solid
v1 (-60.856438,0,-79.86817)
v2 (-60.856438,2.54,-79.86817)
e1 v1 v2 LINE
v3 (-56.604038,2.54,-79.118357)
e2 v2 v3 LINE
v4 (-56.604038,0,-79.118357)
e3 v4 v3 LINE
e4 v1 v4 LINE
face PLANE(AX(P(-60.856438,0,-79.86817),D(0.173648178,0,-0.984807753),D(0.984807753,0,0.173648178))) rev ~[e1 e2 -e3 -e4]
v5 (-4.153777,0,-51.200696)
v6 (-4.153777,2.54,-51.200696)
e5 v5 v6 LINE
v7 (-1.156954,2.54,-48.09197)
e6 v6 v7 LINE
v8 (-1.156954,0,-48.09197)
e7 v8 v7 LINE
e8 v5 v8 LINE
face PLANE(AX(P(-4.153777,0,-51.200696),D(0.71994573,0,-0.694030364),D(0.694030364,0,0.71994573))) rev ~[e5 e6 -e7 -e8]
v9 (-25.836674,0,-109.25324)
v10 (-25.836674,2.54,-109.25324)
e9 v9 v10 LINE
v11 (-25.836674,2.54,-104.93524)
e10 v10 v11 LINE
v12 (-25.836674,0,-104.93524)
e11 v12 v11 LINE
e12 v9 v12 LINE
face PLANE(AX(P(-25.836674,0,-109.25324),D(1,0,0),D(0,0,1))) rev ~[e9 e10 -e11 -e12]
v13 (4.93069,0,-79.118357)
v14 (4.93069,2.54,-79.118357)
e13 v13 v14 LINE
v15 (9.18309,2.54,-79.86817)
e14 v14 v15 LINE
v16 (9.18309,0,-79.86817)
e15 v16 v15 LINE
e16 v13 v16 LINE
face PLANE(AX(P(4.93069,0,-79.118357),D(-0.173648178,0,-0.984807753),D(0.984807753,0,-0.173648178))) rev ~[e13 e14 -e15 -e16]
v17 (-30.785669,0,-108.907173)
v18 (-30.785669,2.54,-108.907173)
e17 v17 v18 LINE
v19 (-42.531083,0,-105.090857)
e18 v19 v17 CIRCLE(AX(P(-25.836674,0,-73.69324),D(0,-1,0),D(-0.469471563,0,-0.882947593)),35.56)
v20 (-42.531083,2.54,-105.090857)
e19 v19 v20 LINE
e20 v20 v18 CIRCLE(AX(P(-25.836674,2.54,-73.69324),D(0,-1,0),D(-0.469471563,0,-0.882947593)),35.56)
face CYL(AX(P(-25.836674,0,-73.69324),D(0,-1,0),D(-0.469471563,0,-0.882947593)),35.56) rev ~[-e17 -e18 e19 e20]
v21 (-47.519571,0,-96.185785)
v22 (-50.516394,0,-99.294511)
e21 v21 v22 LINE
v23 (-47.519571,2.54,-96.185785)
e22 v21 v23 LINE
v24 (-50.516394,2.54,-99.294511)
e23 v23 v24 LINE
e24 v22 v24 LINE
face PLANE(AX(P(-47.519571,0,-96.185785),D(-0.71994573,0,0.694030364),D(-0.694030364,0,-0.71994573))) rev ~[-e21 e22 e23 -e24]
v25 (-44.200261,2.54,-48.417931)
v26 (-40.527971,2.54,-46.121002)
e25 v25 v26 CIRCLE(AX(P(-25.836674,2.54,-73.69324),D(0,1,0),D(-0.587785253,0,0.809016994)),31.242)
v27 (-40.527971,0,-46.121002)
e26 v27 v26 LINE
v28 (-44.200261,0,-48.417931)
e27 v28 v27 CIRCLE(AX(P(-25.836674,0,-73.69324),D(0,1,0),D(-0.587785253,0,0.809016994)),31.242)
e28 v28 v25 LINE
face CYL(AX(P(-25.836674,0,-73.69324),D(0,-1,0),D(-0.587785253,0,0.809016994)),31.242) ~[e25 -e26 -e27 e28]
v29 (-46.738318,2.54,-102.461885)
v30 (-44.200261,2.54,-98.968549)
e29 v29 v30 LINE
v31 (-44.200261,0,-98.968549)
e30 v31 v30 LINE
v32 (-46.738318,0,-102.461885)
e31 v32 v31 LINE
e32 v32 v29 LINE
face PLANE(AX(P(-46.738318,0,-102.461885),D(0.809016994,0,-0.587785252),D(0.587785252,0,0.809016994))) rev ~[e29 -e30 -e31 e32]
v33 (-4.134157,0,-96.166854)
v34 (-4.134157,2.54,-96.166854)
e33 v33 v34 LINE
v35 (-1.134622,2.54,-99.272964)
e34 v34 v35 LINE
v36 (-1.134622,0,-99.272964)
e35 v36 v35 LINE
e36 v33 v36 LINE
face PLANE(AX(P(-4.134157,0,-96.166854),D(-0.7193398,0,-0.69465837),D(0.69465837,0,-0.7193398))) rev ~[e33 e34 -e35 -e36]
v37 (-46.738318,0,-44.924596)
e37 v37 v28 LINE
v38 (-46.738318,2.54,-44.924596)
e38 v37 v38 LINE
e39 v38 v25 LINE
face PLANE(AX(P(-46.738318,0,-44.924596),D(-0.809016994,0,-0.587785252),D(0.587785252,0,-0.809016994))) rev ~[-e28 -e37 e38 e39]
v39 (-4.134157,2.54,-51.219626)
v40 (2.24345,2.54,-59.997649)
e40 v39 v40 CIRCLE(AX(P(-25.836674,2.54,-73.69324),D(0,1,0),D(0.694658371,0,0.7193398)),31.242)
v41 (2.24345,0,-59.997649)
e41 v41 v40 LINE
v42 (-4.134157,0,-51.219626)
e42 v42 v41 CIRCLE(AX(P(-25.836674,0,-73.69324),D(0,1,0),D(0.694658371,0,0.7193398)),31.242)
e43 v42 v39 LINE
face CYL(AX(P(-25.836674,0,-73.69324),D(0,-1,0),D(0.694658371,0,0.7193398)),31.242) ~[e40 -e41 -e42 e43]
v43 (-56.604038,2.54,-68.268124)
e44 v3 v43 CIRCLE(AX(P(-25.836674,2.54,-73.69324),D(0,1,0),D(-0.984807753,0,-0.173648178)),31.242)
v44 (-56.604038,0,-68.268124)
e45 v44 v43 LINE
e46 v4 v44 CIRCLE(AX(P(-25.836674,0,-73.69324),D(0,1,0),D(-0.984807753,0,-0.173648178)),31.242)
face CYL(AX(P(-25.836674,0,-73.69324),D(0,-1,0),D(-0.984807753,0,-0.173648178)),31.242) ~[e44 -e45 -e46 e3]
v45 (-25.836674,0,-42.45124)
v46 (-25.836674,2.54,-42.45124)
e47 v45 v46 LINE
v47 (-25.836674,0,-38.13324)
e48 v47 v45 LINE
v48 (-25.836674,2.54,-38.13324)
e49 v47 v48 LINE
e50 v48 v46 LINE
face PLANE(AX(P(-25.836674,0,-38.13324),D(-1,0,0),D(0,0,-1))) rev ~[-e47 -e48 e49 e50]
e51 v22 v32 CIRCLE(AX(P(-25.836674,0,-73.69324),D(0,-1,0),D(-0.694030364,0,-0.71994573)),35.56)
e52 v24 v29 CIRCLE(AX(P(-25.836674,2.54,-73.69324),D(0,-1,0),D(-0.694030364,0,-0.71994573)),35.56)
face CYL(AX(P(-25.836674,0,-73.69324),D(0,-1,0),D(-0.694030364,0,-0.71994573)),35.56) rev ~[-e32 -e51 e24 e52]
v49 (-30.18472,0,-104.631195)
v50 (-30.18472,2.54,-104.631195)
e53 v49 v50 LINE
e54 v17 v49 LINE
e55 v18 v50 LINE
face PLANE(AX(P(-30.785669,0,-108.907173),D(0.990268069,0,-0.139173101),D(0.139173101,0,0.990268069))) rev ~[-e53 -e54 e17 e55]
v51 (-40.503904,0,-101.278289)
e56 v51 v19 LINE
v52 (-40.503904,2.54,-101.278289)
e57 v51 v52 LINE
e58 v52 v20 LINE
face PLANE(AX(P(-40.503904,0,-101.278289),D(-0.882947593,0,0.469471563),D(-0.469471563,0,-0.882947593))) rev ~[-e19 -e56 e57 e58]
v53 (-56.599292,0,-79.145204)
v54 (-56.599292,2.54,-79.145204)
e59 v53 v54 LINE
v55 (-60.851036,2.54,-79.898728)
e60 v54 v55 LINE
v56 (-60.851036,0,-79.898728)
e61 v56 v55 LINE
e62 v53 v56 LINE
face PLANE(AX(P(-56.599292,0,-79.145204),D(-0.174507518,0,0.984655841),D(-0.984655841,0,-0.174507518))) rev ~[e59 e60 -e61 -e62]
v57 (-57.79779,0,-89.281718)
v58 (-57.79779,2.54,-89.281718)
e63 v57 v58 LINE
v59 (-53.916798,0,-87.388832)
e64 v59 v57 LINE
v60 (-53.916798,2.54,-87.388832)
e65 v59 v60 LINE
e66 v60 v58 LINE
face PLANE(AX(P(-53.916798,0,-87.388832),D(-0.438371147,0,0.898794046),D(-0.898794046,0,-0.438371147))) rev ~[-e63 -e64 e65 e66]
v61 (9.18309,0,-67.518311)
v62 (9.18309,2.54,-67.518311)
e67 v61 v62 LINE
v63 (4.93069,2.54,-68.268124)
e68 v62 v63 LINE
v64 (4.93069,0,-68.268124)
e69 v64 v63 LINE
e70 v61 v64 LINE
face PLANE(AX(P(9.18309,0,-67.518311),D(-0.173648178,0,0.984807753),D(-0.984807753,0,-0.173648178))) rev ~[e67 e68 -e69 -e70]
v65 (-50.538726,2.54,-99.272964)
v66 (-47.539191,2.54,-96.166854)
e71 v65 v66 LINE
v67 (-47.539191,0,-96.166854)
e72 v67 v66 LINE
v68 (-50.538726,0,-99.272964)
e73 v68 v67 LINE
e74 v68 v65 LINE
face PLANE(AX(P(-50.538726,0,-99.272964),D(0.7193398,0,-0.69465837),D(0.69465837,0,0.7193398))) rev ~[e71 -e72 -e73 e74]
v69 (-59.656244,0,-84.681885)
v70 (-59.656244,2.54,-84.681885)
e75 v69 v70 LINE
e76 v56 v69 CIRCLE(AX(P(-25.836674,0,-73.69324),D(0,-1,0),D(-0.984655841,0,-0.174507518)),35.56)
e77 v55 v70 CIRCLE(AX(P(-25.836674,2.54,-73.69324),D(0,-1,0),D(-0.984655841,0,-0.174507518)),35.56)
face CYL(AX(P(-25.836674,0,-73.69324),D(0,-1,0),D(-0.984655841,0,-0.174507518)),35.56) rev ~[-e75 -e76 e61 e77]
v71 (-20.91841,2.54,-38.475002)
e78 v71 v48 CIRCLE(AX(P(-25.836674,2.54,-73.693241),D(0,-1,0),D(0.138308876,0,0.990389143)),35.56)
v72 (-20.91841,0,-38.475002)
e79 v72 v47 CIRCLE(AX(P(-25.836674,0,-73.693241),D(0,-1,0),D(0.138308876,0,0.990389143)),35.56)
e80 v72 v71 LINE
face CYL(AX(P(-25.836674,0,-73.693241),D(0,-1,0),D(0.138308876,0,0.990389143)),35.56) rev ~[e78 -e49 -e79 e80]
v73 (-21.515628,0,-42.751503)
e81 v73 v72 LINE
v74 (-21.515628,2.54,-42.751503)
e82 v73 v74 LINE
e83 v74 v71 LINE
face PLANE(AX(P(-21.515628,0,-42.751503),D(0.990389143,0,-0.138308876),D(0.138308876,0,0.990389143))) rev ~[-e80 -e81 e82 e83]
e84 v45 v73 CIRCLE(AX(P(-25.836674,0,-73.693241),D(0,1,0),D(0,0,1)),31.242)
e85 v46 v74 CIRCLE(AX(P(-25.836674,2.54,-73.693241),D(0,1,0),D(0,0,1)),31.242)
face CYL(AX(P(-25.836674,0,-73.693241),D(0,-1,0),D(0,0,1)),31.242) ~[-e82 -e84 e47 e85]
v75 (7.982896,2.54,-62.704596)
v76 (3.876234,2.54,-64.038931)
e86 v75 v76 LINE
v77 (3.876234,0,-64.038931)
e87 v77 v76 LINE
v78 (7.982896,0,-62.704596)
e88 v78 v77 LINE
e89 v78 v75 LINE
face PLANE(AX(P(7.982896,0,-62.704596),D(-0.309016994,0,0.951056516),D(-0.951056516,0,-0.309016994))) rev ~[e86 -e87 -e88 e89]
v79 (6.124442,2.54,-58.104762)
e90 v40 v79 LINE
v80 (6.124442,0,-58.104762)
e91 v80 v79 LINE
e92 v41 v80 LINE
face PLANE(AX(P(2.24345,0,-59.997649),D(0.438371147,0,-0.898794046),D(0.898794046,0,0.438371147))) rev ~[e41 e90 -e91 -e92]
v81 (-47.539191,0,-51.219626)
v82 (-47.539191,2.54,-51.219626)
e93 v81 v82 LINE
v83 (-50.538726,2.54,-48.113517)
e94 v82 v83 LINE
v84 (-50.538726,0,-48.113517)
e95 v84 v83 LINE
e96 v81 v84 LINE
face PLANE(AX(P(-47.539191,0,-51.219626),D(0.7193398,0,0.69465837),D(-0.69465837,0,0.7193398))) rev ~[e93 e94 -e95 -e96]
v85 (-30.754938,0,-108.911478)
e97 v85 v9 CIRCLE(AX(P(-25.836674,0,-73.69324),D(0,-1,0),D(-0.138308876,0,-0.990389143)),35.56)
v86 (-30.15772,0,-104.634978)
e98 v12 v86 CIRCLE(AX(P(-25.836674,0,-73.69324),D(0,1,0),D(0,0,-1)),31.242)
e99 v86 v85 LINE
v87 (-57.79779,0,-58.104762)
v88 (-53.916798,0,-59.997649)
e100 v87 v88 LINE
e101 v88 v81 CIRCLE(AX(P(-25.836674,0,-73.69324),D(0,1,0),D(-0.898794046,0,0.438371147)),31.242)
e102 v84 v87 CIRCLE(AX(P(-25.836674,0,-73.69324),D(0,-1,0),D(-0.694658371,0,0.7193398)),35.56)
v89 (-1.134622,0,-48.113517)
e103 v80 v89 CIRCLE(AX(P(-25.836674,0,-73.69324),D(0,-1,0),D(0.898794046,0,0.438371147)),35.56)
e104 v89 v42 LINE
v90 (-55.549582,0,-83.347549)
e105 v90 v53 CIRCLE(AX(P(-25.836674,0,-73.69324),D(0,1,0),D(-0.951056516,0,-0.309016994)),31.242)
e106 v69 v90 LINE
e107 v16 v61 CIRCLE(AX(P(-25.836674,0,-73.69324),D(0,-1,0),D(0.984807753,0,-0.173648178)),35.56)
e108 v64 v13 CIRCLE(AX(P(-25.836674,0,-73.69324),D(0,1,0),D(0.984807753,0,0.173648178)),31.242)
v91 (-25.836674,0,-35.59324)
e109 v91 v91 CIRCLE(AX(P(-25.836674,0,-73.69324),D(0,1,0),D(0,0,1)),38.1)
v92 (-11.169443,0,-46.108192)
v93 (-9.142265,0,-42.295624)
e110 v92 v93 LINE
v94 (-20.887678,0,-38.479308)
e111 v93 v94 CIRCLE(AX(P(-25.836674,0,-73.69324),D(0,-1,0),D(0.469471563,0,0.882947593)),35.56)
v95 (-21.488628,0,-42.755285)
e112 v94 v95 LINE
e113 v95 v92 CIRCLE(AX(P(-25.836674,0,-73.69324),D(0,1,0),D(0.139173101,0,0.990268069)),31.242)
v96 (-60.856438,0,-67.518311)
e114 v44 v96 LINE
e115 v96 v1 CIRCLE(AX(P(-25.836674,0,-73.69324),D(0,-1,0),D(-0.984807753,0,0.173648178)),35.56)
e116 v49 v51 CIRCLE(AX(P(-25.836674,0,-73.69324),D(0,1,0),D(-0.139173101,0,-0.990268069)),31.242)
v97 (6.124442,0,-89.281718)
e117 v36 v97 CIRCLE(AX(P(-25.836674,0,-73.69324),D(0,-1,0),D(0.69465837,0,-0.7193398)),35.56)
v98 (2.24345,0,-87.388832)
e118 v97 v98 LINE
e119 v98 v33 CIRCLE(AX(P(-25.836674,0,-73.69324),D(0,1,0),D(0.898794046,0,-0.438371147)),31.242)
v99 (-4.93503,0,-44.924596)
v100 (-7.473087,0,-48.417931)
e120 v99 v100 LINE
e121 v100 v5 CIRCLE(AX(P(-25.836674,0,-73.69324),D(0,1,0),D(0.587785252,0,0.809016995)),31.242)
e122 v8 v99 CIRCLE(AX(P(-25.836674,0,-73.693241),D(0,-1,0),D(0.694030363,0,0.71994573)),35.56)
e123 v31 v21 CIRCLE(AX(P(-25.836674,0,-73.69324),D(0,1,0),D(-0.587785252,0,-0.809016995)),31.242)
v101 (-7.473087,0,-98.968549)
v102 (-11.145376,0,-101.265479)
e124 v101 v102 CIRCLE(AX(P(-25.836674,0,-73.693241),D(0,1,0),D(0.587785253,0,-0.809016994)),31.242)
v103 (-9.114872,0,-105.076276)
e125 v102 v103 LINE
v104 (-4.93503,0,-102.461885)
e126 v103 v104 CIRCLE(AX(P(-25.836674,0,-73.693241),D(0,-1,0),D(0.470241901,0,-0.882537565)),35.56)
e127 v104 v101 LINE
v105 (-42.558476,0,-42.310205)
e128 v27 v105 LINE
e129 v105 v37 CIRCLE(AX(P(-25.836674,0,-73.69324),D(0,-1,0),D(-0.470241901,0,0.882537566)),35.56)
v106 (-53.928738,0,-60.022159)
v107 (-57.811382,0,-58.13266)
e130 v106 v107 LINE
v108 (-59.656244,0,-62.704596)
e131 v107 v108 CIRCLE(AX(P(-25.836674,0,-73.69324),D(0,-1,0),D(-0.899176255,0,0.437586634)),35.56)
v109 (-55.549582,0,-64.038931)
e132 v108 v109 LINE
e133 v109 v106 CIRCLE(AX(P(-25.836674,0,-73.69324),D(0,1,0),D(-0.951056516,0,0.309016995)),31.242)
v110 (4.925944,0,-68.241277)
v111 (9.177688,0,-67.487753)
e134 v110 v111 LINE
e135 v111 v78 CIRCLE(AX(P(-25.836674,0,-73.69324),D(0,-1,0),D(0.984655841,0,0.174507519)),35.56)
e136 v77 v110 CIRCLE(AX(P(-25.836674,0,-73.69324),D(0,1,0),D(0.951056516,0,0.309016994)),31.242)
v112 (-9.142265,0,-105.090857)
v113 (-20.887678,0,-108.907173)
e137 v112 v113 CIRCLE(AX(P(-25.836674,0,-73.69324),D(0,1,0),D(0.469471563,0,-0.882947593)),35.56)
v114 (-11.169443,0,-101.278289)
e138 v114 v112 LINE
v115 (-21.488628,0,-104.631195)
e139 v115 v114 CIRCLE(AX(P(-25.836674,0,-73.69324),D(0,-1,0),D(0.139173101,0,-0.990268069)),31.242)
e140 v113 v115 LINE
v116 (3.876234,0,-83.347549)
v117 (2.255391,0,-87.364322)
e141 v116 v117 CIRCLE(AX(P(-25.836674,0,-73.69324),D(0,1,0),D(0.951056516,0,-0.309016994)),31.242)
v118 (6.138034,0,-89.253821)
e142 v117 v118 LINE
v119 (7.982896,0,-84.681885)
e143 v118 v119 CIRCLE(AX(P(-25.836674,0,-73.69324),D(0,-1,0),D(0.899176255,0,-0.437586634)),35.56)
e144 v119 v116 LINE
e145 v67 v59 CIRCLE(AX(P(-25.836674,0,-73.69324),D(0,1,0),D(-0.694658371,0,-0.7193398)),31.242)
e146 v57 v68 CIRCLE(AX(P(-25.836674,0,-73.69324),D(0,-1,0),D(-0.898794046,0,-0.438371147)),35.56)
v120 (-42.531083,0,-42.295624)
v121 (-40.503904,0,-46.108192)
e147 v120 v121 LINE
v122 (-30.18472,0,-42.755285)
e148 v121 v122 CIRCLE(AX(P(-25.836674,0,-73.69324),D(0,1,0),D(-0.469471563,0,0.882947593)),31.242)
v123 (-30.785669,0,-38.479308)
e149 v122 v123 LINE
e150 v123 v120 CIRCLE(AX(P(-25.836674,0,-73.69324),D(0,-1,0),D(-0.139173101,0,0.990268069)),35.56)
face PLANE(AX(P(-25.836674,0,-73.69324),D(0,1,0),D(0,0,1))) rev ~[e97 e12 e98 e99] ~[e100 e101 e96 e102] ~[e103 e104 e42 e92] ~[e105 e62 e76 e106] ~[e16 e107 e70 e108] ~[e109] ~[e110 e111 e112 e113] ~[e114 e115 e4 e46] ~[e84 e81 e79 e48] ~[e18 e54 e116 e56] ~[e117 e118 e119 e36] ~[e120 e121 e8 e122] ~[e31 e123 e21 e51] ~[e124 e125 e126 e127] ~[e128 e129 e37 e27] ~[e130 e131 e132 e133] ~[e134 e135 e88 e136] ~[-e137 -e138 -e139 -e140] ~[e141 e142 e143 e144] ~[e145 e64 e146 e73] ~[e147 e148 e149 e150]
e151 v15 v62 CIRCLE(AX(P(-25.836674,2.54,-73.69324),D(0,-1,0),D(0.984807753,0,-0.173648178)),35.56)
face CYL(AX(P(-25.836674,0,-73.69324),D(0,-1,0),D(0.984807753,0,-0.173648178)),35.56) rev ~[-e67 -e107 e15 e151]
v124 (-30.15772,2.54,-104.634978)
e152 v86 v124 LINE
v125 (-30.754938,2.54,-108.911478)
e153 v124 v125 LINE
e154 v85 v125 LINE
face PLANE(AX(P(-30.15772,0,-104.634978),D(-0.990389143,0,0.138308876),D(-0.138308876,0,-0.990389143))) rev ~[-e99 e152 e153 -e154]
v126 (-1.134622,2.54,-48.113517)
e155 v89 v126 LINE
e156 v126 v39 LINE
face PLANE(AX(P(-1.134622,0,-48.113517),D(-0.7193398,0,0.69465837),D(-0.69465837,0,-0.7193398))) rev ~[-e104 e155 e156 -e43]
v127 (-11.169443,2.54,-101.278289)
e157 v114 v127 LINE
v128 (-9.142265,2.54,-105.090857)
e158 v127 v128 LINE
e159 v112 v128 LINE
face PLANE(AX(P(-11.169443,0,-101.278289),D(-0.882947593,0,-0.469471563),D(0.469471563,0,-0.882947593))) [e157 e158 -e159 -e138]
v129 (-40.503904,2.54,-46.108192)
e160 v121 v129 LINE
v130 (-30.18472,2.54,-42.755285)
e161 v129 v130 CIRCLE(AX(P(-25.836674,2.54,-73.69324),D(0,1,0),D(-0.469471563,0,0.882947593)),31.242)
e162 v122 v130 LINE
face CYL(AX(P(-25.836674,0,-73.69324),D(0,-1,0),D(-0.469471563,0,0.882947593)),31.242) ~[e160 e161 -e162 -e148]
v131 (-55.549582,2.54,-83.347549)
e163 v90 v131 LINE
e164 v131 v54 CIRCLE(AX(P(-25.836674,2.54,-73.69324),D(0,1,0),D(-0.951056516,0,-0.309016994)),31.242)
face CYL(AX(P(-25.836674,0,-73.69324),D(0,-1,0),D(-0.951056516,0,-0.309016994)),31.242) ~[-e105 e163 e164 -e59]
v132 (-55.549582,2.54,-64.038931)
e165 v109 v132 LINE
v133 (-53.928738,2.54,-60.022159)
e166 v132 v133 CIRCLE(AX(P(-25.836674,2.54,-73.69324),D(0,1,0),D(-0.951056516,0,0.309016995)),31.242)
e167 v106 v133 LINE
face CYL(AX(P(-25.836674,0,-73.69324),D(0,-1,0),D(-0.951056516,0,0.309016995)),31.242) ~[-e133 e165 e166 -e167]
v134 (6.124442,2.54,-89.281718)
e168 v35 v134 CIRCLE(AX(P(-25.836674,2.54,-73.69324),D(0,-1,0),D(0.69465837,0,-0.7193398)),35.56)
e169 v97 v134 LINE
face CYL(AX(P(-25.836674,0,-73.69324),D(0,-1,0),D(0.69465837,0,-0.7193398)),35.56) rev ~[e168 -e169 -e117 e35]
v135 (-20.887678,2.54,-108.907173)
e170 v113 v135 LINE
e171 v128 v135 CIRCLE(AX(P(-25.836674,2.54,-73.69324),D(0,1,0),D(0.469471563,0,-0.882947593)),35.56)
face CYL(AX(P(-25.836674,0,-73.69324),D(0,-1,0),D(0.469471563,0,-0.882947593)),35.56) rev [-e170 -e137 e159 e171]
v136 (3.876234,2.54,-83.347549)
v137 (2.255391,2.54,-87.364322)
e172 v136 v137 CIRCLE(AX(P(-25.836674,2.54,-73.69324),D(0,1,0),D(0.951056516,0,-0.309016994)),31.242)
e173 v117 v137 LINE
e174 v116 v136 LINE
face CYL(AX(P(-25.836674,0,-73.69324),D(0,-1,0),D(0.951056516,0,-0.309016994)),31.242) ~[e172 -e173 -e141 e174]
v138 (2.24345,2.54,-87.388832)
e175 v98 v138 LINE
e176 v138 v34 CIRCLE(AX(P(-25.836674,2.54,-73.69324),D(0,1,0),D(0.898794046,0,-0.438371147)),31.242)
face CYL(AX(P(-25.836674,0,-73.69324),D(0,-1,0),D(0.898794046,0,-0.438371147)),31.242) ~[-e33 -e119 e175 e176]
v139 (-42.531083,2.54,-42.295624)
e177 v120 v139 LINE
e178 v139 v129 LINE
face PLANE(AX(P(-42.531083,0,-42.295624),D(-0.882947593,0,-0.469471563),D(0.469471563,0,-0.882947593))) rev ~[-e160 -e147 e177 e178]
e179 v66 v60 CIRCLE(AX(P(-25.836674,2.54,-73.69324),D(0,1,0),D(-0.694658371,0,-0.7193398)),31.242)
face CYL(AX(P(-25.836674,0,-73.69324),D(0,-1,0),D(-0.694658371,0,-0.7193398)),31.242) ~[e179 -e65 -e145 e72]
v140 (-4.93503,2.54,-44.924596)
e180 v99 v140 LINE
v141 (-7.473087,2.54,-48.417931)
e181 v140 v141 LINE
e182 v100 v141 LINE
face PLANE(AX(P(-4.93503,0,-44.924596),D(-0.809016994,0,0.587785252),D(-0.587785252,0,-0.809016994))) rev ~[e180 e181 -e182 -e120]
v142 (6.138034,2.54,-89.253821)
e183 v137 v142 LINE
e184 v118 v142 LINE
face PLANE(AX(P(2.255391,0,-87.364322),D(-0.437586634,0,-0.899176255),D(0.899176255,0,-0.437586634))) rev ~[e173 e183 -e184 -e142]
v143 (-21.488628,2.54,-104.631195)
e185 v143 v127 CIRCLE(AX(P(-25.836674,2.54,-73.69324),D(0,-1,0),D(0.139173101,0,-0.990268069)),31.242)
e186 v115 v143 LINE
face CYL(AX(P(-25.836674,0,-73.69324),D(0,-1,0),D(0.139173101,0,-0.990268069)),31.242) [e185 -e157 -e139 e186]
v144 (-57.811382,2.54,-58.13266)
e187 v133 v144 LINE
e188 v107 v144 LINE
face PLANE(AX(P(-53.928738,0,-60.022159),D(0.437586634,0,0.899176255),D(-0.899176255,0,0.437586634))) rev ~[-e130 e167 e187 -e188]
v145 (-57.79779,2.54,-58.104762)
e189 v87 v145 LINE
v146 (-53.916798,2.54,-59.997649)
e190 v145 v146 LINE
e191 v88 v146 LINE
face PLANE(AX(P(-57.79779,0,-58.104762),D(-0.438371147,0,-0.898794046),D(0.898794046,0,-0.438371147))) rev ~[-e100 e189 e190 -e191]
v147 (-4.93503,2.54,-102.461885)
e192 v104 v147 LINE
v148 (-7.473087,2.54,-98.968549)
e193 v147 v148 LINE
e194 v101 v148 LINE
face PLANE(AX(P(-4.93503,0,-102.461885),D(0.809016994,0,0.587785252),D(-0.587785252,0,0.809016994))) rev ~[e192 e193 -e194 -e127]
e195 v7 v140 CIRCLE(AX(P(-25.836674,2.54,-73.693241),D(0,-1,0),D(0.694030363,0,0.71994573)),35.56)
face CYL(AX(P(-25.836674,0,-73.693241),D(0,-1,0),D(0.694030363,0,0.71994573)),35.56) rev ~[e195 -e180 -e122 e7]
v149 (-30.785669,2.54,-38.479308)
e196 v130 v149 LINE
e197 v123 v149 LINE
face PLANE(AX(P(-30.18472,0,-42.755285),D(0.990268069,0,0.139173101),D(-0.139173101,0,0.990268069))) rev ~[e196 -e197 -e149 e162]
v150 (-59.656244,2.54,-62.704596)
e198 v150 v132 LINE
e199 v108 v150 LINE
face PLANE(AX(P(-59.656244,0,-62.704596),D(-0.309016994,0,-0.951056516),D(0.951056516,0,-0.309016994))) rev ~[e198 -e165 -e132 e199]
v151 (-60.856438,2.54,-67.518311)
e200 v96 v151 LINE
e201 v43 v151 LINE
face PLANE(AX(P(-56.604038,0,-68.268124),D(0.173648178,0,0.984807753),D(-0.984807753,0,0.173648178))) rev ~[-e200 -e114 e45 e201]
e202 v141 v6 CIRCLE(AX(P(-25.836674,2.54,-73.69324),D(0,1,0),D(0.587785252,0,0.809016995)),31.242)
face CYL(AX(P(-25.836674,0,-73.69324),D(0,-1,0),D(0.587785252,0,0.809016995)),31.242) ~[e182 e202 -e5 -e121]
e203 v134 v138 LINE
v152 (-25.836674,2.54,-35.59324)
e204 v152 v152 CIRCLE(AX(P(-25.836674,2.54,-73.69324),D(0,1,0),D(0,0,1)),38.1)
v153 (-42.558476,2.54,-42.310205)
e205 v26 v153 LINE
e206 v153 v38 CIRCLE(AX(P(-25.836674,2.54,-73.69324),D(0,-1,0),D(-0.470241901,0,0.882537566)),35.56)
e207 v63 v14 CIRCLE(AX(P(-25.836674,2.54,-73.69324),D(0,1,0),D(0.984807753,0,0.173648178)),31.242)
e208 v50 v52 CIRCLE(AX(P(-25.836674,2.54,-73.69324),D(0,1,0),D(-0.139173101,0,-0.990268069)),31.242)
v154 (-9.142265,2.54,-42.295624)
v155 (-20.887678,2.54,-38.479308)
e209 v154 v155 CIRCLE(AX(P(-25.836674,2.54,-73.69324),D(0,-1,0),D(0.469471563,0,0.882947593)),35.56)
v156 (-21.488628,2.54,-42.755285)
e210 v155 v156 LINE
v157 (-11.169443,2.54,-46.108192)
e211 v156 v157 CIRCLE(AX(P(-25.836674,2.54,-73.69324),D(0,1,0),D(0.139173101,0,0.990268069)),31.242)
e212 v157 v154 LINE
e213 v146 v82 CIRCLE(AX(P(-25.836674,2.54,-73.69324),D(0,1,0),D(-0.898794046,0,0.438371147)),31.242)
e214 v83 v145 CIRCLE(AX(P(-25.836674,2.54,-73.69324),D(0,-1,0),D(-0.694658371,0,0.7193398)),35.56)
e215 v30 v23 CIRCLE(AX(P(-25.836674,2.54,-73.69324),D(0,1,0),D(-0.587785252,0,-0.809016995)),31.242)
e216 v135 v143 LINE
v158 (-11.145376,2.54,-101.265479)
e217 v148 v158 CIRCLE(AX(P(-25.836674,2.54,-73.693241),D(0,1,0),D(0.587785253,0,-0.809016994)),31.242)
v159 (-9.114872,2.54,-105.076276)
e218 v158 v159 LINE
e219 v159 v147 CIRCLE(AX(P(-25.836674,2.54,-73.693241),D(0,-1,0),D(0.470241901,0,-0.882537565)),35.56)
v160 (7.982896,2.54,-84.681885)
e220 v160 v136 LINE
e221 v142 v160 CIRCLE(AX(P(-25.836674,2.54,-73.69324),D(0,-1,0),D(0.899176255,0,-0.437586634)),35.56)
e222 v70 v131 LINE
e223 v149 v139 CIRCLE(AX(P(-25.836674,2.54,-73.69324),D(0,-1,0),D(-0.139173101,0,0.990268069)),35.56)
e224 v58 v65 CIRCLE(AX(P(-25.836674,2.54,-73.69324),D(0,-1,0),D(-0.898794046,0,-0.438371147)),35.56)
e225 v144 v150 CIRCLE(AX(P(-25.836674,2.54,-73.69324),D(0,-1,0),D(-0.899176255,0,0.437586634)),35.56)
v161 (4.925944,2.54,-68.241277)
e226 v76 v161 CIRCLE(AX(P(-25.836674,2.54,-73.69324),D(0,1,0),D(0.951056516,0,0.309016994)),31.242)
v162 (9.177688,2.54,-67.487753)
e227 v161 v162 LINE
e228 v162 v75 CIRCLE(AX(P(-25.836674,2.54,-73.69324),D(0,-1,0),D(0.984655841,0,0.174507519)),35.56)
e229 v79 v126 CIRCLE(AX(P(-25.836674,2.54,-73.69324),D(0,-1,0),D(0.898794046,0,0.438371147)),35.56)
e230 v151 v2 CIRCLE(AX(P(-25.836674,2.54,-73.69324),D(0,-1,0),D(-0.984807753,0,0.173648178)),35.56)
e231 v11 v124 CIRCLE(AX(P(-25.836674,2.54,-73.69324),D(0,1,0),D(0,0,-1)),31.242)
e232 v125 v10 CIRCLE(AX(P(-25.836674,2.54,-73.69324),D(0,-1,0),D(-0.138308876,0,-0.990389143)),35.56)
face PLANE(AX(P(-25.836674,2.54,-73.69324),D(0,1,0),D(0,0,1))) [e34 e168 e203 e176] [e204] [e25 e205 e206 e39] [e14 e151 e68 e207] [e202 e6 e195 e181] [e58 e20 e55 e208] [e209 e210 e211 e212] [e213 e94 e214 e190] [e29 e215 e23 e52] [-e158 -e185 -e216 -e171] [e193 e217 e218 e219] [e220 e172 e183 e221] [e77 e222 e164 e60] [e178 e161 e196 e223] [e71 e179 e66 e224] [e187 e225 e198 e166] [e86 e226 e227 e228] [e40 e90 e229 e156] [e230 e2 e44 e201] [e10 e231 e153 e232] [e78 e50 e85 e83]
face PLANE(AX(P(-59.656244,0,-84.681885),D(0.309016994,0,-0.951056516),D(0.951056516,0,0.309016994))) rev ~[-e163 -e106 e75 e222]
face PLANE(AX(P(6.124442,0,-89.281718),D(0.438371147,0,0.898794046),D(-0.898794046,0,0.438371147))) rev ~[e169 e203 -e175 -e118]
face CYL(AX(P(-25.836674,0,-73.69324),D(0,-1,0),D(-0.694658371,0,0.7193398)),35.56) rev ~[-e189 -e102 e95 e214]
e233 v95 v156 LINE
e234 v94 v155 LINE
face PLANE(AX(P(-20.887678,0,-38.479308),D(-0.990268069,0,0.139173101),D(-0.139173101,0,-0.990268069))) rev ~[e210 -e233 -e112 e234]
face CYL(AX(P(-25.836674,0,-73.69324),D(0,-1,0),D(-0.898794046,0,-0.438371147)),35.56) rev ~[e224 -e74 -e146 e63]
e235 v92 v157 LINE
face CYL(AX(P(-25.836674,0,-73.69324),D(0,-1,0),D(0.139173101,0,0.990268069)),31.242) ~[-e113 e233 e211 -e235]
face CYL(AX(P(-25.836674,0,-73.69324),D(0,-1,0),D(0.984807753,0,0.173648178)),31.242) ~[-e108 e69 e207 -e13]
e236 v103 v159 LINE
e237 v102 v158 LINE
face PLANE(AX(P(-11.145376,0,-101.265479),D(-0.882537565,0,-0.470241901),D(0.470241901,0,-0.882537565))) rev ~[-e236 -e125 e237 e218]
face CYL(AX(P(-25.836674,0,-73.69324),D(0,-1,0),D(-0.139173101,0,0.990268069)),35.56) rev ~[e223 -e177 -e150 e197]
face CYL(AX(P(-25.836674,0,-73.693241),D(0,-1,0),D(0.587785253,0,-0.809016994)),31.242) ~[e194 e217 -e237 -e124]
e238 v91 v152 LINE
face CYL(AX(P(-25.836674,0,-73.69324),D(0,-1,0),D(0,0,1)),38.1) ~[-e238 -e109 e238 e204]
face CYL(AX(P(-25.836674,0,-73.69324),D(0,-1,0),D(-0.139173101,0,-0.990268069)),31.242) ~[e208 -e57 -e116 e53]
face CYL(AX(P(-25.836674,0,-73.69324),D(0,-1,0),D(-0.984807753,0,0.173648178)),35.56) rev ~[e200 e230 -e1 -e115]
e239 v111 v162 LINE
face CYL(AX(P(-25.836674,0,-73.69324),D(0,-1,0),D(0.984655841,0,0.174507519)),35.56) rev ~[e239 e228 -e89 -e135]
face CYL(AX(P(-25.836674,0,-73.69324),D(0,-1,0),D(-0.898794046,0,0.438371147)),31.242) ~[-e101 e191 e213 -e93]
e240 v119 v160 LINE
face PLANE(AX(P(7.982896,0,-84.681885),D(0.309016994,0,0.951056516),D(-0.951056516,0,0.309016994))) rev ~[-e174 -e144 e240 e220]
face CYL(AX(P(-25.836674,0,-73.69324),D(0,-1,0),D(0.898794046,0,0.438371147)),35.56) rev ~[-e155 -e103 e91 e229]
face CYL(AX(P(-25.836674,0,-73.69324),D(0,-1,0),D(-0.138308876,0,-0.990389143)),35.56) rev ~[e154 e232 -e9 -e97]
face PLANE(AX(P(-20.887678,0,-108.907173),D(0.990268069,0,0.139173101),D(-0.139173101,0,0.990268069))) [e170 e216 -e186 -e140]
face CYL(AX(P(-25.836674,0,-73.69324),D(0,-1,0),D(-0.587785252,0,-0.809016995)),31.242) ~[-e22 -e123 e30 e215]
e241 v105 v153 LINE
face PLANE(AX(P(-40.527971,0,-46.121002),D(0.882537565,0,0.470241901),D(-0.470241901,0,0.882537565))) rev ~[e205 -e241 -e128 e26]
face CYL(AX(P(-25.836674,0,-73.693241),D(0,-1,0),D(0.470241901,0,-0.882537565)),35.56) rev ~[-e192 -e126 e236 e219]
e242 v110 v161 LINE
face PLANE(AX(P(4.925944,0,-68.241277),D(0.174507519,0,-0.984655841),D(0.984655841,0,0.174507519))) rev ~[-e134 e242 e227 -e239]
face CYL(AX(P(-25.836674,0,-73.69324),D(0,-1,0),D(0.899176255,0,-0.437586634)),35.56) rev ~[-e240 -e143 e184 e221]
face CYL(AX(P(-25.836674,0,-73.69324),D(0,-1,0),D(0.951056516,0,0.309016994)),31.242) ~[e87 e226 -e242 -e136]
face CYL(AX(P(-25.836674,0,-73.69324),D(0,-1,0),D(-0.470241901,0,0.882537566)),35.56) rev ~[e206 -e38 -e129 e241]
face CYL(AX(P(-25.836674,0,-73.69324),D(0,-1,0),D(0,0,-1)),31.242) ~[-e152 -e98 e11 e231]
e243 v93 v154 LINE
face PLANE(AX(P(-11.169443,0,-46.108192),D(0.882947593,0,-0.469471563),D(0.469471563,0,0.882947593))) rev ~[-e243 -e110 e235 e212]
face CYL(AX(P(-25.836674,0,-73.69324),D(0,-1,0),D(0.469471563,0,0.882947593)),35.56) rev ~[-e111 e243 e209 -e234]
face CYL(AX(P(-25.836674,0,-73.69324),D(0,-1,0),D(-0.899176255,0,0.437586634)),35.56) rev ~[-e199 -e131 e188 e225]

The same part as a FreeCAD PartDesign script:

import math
import FreeCAD as App
import Part
import Sketcher
Q = App.Units.Quantity

doc = App.newDocument("Part")
body = doc.addObject("PartDesign::Body", "Body")

sketch1 = body.newObject("Sketcher::SketchObject", "Sketch")
sketch1.AttachmentSupport = (doc.getObject("XZ_Plane"), [""])
sketch1.MapMode = "FlatFace"
sketch1.addGeometry([
    Part.Circle(App.Vector(-25.8, -73.7, 0), App.Vector(0, 0, 1), 38.1),
    Part.ArcOfCircle(Part.Circle(App.Vector(-25.8, -73.7, 0), App.Vector(0, 0, 1), 35.6), math.radians(-154), math.radians(-134)),
    Part.LineSegment(App.Vector(-50.5, -99.3, 0), App.Vector(-47.5, -96.2, 0)),
    Part.ArcOfCircle(Part.Circle(App.Vector(-25.8, -73.7, 0), App.Vector(0, 0, 1), 31.2), math.radians(-154), math.radians(-134)),
    Part.LineSegment(App.Vector(-53.9, -87.4, 0), App.Vector(-57.8, -89.3, 0)),
    Part.ArcOfCircle(Part.Circle(App.Vector(-25.8, -73.7, 0), App.Vector(0, 0, 1), 35.6), math.radians(-133.95), math.radians(-126)),
    Part.LineSegment(App.Vector(-46.7, -102.5, 0), App.Vector(-44.2, -99, 0)),
    Part.ArcOfCircle(Part.Circle(App.Vector(-25.8, -73.7, 0), App.Vector(0, 0, 1), 31.2), math.radians(-133.95), math.radians(-126)),
    Part.LineSegment(App.Vector(-47.5, -96.2, 0), App.Vector(-50.5, -99.3, 0)),
    Part.ArcOfCircle(Part.Circle(App.Vector(-25.8, -73.7, 0), App.Vector(0, 0, 1), 35.6), math.radians(-169.95), math.radians(-162)),
    Part.LineSegment(App.Vector(-59.7, -84.7, 0), App.Vector(-55.5, -83.3, 0)),
    Part.ArcOfCircle(Part.Circle(App.Vector(-25.8, -73.7, 0), App.Vector(0, 0, 1), 31.2), math.radians(-169.95), math.radians(-162)),
    Part.LineSegment(App.Vector(-56.6, -79.1, 0), App.Vector(-60.9, -79.9, 0)),
    Part.ArcOfCircle(Part.Circle(App.Vector(-25.8, -73.7, 0), App.Vector(0, 0, 1), 35.6), math.radians(170), math.radians(190)),
    Part.LineSegment(App.Vector(-60.9, -79.9, 0), App.Vector(-56.6, -79.1, 0)),
    Part.ArcOfCircle(Part.Circle(App.Vector(-25.8, -73.7, 0), App.Vector(0, 0, 1), 31.2), math.radians(170), math.radians(190)),
    Part.LineSegment(App.Vector(-56.6, -68.3, 0), App.Vector(-60.9, -67.5, 0)),
    Part.ArcOfCircle(Part.Circle(App.Vector(-25.8, -73.7, 0), App.Vector(0, 0, 1), 35.6), math.radians(-118), math.radians(-98)),
    Part.LineSegment(App.Vector(-30.8, -108.9, 0), App.Vector(-30.2, -104.6, 0)),
    Part.ArcOfCircle(Part.Circle(App.Vector(-25.8, -73.7, 0), App.Vector(0, 0, 1), 31.2), math.radians(-118), math.radians(-98)),
    Part.LineSegment(App.Vector(-40.5, -101.3, 0), App.Vector(-42.5, -105.1, 0)),
    Part.ArcOfCircle(Part.Circle(App.Vector(-25.8, -73.7, 0), App.Vector(0, 0, 1), 35.6), math.radians(-97.95), math.radians(-90)),
    Part.LineSegment(App.Vector(-25.8, -109.3, 0), App.Vector(-25.8, -104.9, 0)),
    Part.ArcOfCircle(Part.Circle(App.Vector(-25.8, -73.7, 0), App.Vector(0, 0, 1), 31.2), math.radians(-97.95), math.radians(-90)),
    Part.LineSegment(App.Vector(-30.2, -104.6, 0), App.Vector(-30.8, -108.9, 0)),
    Part.ArcOfCircle(Part.Circle(App.Vector(-25.8, -73.7, 0), App.Vector(0, 0, 1), 35.6), math.radians(154.05), math.radians(162)),
    Part.LineSegment(App.Vector(-59.7, -62.7, 0), App.Vector(-55.5, -64, 0)),
    Part.ArcOfCircle(Part.Circle(App.Vector(-25.8, -73.7, 0), App.Vector(0, 0, 1), 31.2), math.radians(154.05), math.radians(162)),
    Part.LineSegment(App.Vector(-53.9, -60, 0), App.Vector(-57.8, -58.1, 0)),
    Part.ArcOfCircle(Part.Circle(App.Vector(-25.8, -73.7, 0), App.Vector(0, 0, 1), 35.6), math.radians(134), math.radians(154)),
    Part.LineSegment(App.Vector(-57.8, -58.1, 0), App.Vector(-53.9, -60, 0)),
    Part.ArcOfCircle(Part.Circle(App.Vector(-25.8, -73.7, 0), App.Vector(0, 0, 1), 31.2), math.radians(134), math.radians(154)),
    Part.LineSegment(App.Vector(-47.5, -51.2, 0), App.Vector(-50.5, -48.1, 0)),
    Part.ArcOfCircle(Part.Circle(App.Vector(-25.8, -73.7, 0), App.Vector(0, 0, 1), 35.6), math.radians(118.05), math.radians(126)),
    Part.LineSegment(App.Vector(-46.7, -44.9, 0), App.Vector(-44.2, -48.4, 0)),
    Part.ArcOfCircle(Part.Circle(App.Vector(-25.8, -73.7, 0), App.Vector(0, 0, 1), 31.2), math.radians(118.05), math.radians(126)),
    Part.LineSegment(App.Vector(-40.5, -46.1, 0), App.Vector(-42.6, -42.3, 0)),
    Part.ArcOfCircle(Part.Circle(App.Vector(-25.8, -73.7, 0), App.Vector(0, 0, 1), 35.6), math.radians(98), math.radians(118)),
    Part.LineSegment(App.Vector(-42.5, -42.3, 0), App.Vector(-40.5, -46.1, 0)),
    Part.ArcOfCircle(Part.Circle(App.Vector(-25.8, -73.7, 0), App.Vector(0, 0, 1), 31.2), math.radians(98), math.radians(118)),
    Part.LineSegment(App.Vector(-30.2, -42.8, 0), App.Vector(-30.8, -38.5, 0)),
    Part.LineSegment(App.Vector(-21.5, -104.6, 0), App.Vector(-20.9, -108.9, 0)),
    Part.ArcOfCircle(Part.Circle(App.Vector(-25.8, -73.7, 0), App.Vector(0, 0, 1), 35.6), math.radians(-82), math.radians(-62)),
    Part.LineSegment(App.Vector(-9.1, -105.1, 0), App.Vector(-11.2, -101.3, 0)),
    Part.ArcOfCircle(Part.Circle(App.Vector(-25.8, -73.7, 0), App.Vector(0, 0, 1), 31.2), math.radians(-82), math.radians(-62)),
    Part.ArcOfCircle(Part.Circle(App.Vector(-25.8, -73.7, 0), App.Vector(0, 0, 1), 35.6), math.radians(-61.95), math.radians(-54)),
    Part.LineSegment(App.Vector(-4.9, -102.5, 0), App.Vector(-7.5, -99, 0)),
    Part.ArcOfCircle(Part.Circle(App.Vector(-25.8, -73.7, 0), App.Vector(0, 0, 1), 31.2), math.radians(-61.95), math.radians(-54)),
    Part.LineSegment(App.Vector(-11.1, -101.3, 0), App.Vector(-9.1, -105.1, 0)),
    Part.ArcOfCircle(Part.Circle(App.Vector(-25.8, -73.7, 0), App.Vector(0, 0, 1), 35.6), math.radians(-46), math.radians(-26)),
    Part.LineSegment(App.Vector(6.1, -89.3, 0), App.Vector(2.2, -87.4, 0)),
    Part.ArcOfCircle(Part.Circle(App.Vector(-25.8, -73.7, 0), App.Vector(0, 0, 1), 31.2), math.radians(-46), math.radians(-26)),
    Part.LineSegment(App.Vector(-4.1, -96.2, 0), App.Vector(-1.1, -99.3, 0)),
    Part.ArcOfCircle(Part.Circle(App.Vector(-25.8, -73.7, 0), App.Vector(0, 0, 1), 35.6), math.radians(-25.95), math.radians(-18)),
    Part.LineSegment(App.Vector(8, -84.7, 0), App.Vector(3.9, -83.3, 0)),
    Part.ArcOfCircle(Part.Circle(App.Vector(-25.8, -73.7, 0), App.Vector(0, 0, 1), 31.2), math.radians(-25.95), math.radians(-18)),
    Part.LineSegment(App.Vector(2.3, -87.4, 0), App.Vector(6.1, -89.3, 0)),
    Part.ArcOfCircle(Part.Circle(App.Vector(-25.8, -73.7, 0), App.Vector(0, 0, 1), 35.6), math.radians(-10), math.radians(10)),
    Part.LineSegment(App.Vector(9.2, -67.5, 0), App.Vector(4.9, -68.3, 0)),
    Part.ArcOfCircle(Part.Circle(App.Vector(-25.8, -73.7, 0), App.Vector(0, 0, 1), 31.2), math.radians(-10), math.radians(10)),
    Part.LineSegment(App.Vector(4.9, -79.1, 0), App.Vector(9.2, -79.9, 0)),
    Part.ArcOfCircle(Part.Circle(App.Vector(-25.8, -73.7, 0), App.Vector(0, 0, 1), 35.6), math.radians(82.05), math.radians(90)),
    Part.LineSegment(App.Vector(-25.8, -38.1, 0), App.Vector(-25.8, -42.5, 0)),
    Part.ArcOfCircle(Part.Circle(App.Vector(-25.8, -73.7, 0), App.Vector(0, 0, 1), 31.2), math.radians(82.05), math.radians(90)),
    Part.LineSegment(App.Vector(-21.5, -42.8, 0), App.Vector(-20.9, -38.5, 0)),
    Part.ArcOfCircle(Part.Circle(App.Vector(-25.8, -73.7, 0), App.Vector(0, 0, 1), 35.6), math.radians(62), math.radians(82)),
    Part.LineSegment(App.Vector(-20.9, -38.5, 0), App.Vector(-21.5, -42.8, 0)),
    Part.ArcOfCircle(Part.Circle(App.Vector(-25.8, -73.7, 0), App.Vector(0, 0, 1), 31.2), math.radians(62), math.radians(82)),
    Part.LineSegment(App.Vector(-11.2, -46.1, 0), App.Vector(-9.1, -42.3, 0)),
    Part.ArcOfCircle(Part.Circle(App.Vector(-25.8, -73.7, 0), App.Vector(0, 0, 1), 35.6), math.radians(10.05), math.radians(18)),
    Part.LineSegment(App.Vector(8, -62.7, 0), App.Vector(3.9, -64, 0)),
    Part.ArcOfCircle(Part.Circle(App.Vector(-25.8, -73.7, 0), App.Vector(0, 0, 1), 31.2), math.radians(10.05), math.radians(18)),
    Part.LineSegment(App.Vector(4.9, -68.2, 0), App.Vector(9.2, -67.5, 0)),
    Part.ArcOfCircle(Part.Circle(App.Vector(-25.8, -73.7, 0), App.Vector(0, 0, 1), 35.6), math.radians(46.05), math.radians(54)),
    Part.LineSegment(App.Vector(-4.9, -44.9, 0), App.Vector(-7.5, -48.4, 0)),
    Part.ArcOfCircle(Part.Circle(App.Vector(-25.8, -73.7, 0), App.Vector(0, 0, 1), 31.2), math.radians(46.05), math.radians(54)),
    Part.LineSegment(App.Vector(-4.2, -51.2, 0), App.Vector(-1.2, -48.1, 0)),
    Part.ArcOfCircle(Part.Circle(App.Vector(-25.8, -73.7, 0), App.Vector(0, 0, 1), 35.6), math.radians(26), math.radians(46)),
    Part.LineSegment(App.Vector(-1.1, -48.1, 0), App.Vector(-4.1, -51.2, 0)),
    Part.ArcOfCircle(Part.Circle(App.Vector(-25.8, -73.7, 0), App.Vector(0, 0, 1), 31.2), math.radians(26), math.radians(46)),
    Part.LineSegment(App.Vector(2.2, -60, 0), App.Vector(6.1, -58.1, 0)),
], False)
sketch1.addConstraint([
    Sketcher.Constraint("Coincident", 1, 2, 2, 1),
    Sketcher.Constraint("Coincident", 2, 2, 3, 2),
    Sketcher.Constraint("Coincident", 3, 1, 4, 1),
    Sketcher.Constraint("Coincident", 4, 2, 1, 1),
    Sketcher.Constraint("Coincident", 5, 2, 6, 1),
    Sketcher.Constraint("Coincident", 6, 2, 7, 2),
    Sketcher.Constraint("Coincident", 7, 1, 8, 1),
    Sketcher.Constraint("Coincident", 8, 2, 5, 1),
    Sketcher.Constraint("Coincident", 9, 2, 10, 1),
    Sketcher.Constraint("Coincident", 10, 2, 11, 2),
    Sketcher.Constraint("Coincident", 11, 1, 12, 1),
    Sketcher.Constraint("Coincident", 12, 2, 9, 1),
    Sketcher.Constraint("Coincident", 13, 2, 14, 1),
    Sketcher.Constraint("Coincident", 14, 2, 15, 2),
    Sketcher.Constraint("Coincident", 15, 1, 16, 1),
    Sketcher.Constraint("Coincident", 16, 2, 13, 1),
    Sketcher.Constraint("Coincident", 17, 2, 18, 1),
    Sketcher.Constraint("Coincident", 18, 2, 19, 2),
    Sketcher.Constraint("Coincident", 19, 1, 20, 1),
    Sketcher.Constraint("Coincident", 20, 2, 17, 1),
    Sketcher.Constraint("Coincident", 21, 2, 22, 1),
    Sketcher.Constraint("Coincident", 22, 2, 23, 2),
    Sketcher.Constraint("Coincident", 23, 1, 24, 1),
    Sketcher.Constraint("Coincident", 24, 2, 21, 1),
    Sketcher.Constraint("Coincident", 25, 2, 26, 1),
    Sketcher.Constraint("Coincident", 26, 2, 27, 2),
    Sketcher.Constraint("Coincident", 27, 1, 28, 1),
    Sketcher.Constraint("Coincident", 28, 2, 25, 1),
    Sketcher.Constraint("Coincident", 29, 2, 30, 1),
    Sketcher.Constraint("Coincident", 30, 2, 31, 2),
    Sketcher.Constraint("Coincident", 31, 1, 32, 1),
    Sketcher.Constraint("Coincident", 32, 2, 29, 1),
    Sketcher.Constraint("Coincident", 33, 2, 34, 1),
    Sketcher.Constraint("Coincident", 34, 2, 35, 2),
    Sketcher.Constraint("Coincident", 35, 1, 36, 1),
    Sketcher.Constraint("Coincident", 36, 2, 33, 1),
    Sketcher.Constraint("Coincident", 37, 2, 38, 1),
    Sketcher.Constraint("Coincident", 38, 2, 39, 2),
    Sketcher.Constraint("Coincident", 39, 1, 40, 1),
    Sketcher.Constraint("Coincident", 40, 2, 37, 1),
    Sketcher.Constraint("Coincident", 41, 2, 42, 1),
    Sketcher.Constraint("Coincident", 42, 2, 43, 1),
    Sketcher.Constraint("Coincident", 43, 2, 44, 2),
    Sketcher.Constraint("Coincident", 44, 1, 41, 1),
    Sketcher.Constraint("Coincident", 45, 2, 46, 1),
    Sketcher.Constraint("Coincident", 46, 2, 47, 2),
    Sketcher.Constraint("Coincident", 47, 1, 48, 1),
    Sketcher.Constraint("Coincident", 48, 2, 45, 1),
    Sketcher.Constraint("Coincident", 49, 2, 50, 1),
    Sketcher.Constraint("Coincident", 50, 2, 51, 2),
    Sketcher.Constraint("Coincident", 51, 1, 52, 1),
    Sketcher.Constraint("Coincident", 52, 2, 49, 1),
    Sketcher.Constraint("Coincident", 53, 2, 54, 1),
    Sketcher.Constraint("Coincident", 54, 2, 55, 2),
    Sketcher.Constraint("Coincident", 55, 1, 56, 1),
    Sketcher.Constraint("Coincident", 56, 2, 53, 1),
    Sketcher.Constraint("Coincident", 57, 2, 58, 1),
    Sketcher.Constraint("Coincident", 58, 2, 59, 2),
    Sketcher.Constraint("Coincident", 59, 1, 60, 1),
    Sketcher.Constraint("Coincident", 60, 2, 57, 1),
    Sketcher.Constraint("Coincident", 61, 2, 62, 1),
    Sketcher.Constraint("Coincident", 62, 2, 63, 2),
    Sketcher.Constraint("Coincident", 63, 1, 64, 1),
    Sketcher.Constraint("Coincident", 64, 2, 61, 1),
    Sketcher.Constraint("Coincident", 65, 2, 66, 1),
    Sketcher.Constraint("Coincident", 66, 2, 67, 2),
    Sketcher.Constraint("Coincident", 67, 1, 68, 1),
    Sketcher.Constraint("Coincident", 68, 2, 65, 1),
    Sketcher.Constraint("Coincident", 69, 2, 70, 1),
    Sketcher.Constraint("Coincident", 70, 2, 71, 2),
    Sketcher.Constraint("Coincident", 71, 1, 72, 1),
    Sketcher.Constraint("Coincident", 72, 2, 69, 1),
    Sketcher.Constraint("Coincident", 73, 2, 74, 1),
    Sketcher.Constraint("Coincident", 74, 2, 75, 2),
    Sketcher.Constraint("Coincident", 75, 1, 76, 1),
    Sketcher.Constraint("Coincident", 76, 2, 73, 1),
    Sketcher.Constraint("Coincident", 77, 2, 78, 1),
    Sketcher.Constraint("Coincident", 78, 2, 79, 2),
    Sketcher.Constraint("Coincident", 79, 1, 80, 1),
    Sketcher.Constraint("Coincident", 80, 2, 77, 1),
    Sketcher.Constraint("Vertical", 22),
    Sketcher.Constraint("Vertical", 62),
    Sketcher.Constraint("Coincident", 1, 3, 0, 3),
    Sketcher.Constraint("Coincident", 3, 3, 0, 3),
    Sketcher.Constraint("Coincident", 5, 3, 0, 3),
    Sketcher.Constraint("Coincident", 7, 3, 0, 3),
    Sketcher.Constraint("Coincident", 9, 3, 0, 3),
    Sketcher.Constraint("Coincident", 11, 3, 0, 3),
    Sketcher.Constraint("Coincident", 13, 3, 0, 3),
    Sketcher.Constraint("Coincident", 15, 3, 0, 3),
    Sketcher.Constraint("Coincident", 17, 3, 0, 3),
    Sketcher.Constraint("Coincident", 19, 3, 0, 3),
    Sketcher.Constraint("Coincident", 21, 3, 0, 3),
    Sketcher.Constraint("Coincident", 23, 3, 0, 3),
    Sketcher.Constraint("Coincident", 25, 3, 0, 3),
    Sketcher.Constraint("Coincident", 27, 3, 0, 3),
    Sketcher.Constraint("Coincident", 29, 3, 0, 3),
    Sketcher.Constraint("Coincident", 31, 3, 0, 3),
    Sketcher.Constraint("Coincident", 33, 3, 0, 3),
    Sketcher.Constraint("Coincident", 35, 3, 0, 3),
    Sketcher.Constraint("Coincident", 37, 3, 0, 3),
    Sketcher.Constraint("Coincident", 39, 3, 0, 3),
    Sketcher.Constraint("Coincident", 42, 3, 0, 3),
    Sketcher.Constraint("Coincident", 44, 3, 0, 3),
    Sketcher.Constraint("Coincident", 45, 3, 0, 3),
    Sketcher.Constraint("Coincident", 47, 3, 0, 3),
    Sketcher.Constraint("Coincident", 49, 3, 0, 3),
    Sketcher.Constraint("Coincident", 51, 3, 0, 3),
    Sketcher.Constraint("Coincident", 53, 3, 0, 3),
    Sketcher.Constraint("Coincident", 55, 3, 0, 3),
    Sketcher.Constraint("Coincident", 57, 3, 0, 3),
    Sketcher.Constraint("Coincident", 59, 3, 0, 3),
    Sketcher.Constraint("Coincident", 61, 3, 0, 3),
    Sketcher.Constraint("Coincident", 63, 3, 0, 3),
    Sketcher.Constraint("Coincident", 65, 3, 0, 3),
    Sketcher.Constraint("Coincident", 67, 3, 0, 3),
    Sketcher.Constraint("Coincident", 69, 3, 0, 3),
    Sketcher.Constraint("Coincident", 71, 3, 0, 3),
    Sketcher.Constraint("Coincident", 73, 3, 0, 3),
    Sketcher.Constraint("Coincident", 75, 3, 0, 3),
    Sketcher.Constraint("Coincident", 77, 3, 0, 3),
    Sketcher.Constraint("Coincident", 79, 3, 0, 3),
    Sketcher.Constraint("Equal", 1, 5),
    Sketcher.Constraint("Equal", 3, 7),
    Sketcher.Constraint("Equal", 5, 9),
    Sketcher.Constraint("Equal", 7, 11),
    Sketcher.Constraint("Equal", 9, 13),
    Sketcher.Constraint("Equal", 11, 15),
    Sketcher.Constraint("Equal", 13, 17),
    Sketcher.Constraint("Equal", 15, 19),
    Sketcher.Constraint("Equal", 17, 21),
    Sketcher.Constraint("Equal", 19, 23),
    Sketcher.Constraint("Equal", 21, 25),
    Sketcher.Constraint("Equal", 23, 27),
    Sketcher.Constraint("Equal", 25, 29),
    Sketcher.Constraint("Equal", 27, 31),
    Sketcher.Constraint("Equal", 29, 33),
    Sketcher.Constraint("Equal", 31, 35),
    Sketcher.Constraint("Equal", 33, 37),
    Sketcher.Constraint("Equal", 35, 39),
    Sketcher.Constraint("Equal", 37, 42),
    Sketcher.Constraint("Equal", 39, 44),
    Sketcher.Constraint("Equal", 42, 45),
    Sketcher.Constraint("Equal", 44, 47),
    Sketcher.Constraint("Equal", 45, 49),
    Sketcher.Constraint("Equal", 47, 51),
    Sketcher.Constraint("Equal", 49, 53),
    Sketcher.Constraint("Equal", 51, 55),
    Sketcher.Constraint("Equal", 53, 57),
    Sketcher.Constraint("Equal", 55, 59),
    Sketcher.Constraint("Equal", 57, 61),
    Sketcher.Constraint("Equal", 59, 63),
    Sketcher.Constraint("Equal", 61, 65),
    Sketcher.Constraint("Equal", 63, 67),
    Sketcher.Constraint("Equal", 65, 69),
    Sketcher.Constraint("Equal", 67, 71),
    Sketcher.Constraint("Equal", 69, 73),
    Sketcher.Constraint("Equal", 71, 75),
    Sketcher.Constraint("Equal", 73, 77),
    Sketcher.Constraint("Equal", 75, 79),
    Sketcher.Constraint("Parallel", 40, 41),
    Sketcher.Constraint("Parallel", 38, 43),
    Sketcher.Constraint("Parallel", 34, 46),
    Sketcher.Constraint("Parallel", 36, 48),
    Sketcher.Constraint("Parallel", 30, 50),
    Sketcher.Constraint("Parallel", 32, 52),
    Sketcher.Constraint("Parallel", 26, 54),
    Sketcher.Constraint("Parallel", 28, 56),
    Sketcher.Constraint("Parallel", 14, 58),
    Sketcher.Constraint("Parallel", 16, 60),
    Sketcher.Constraint("Parallel", 24, 64),
    Sketcher.Constraint("Parallel", 18, 66),
    Sketcher.Constraint("Parallel", 20, 68),
    Sketcher.Constraint("Parallel", 10, 70),
    Sketcher.Constraint("Parallel", 12, 72),
    Sketcher.Constraint("Parallel", 6, 74),
    Sketcher.Constraint("Parallel", 8, 76),
    Sketcher.Constraint("Parallel", 2, 78),
    Sketcher.Constraint("Parallel", 4, 80),
    Sketcher.Constraint("Horizontal", 17, 2, 41, 2),
    Sketcher.Constraint("Horizontal", 20, 2, 42, 2),
    Sketcher.Constraint("Horizontal", 19, 1, 43, 2),
    Sketcher.Constraint("Horizontal", 18, 2, 44, 1),
    Sketcher.Constraint("Horizontal", 5, 2, 45, 2),
    Sketcher.Constraint("Horizontal", 6, 2, 46, 2),
    Sketcher.Constraint("Horizontal", 4, 2, 49, 2),
    Sketcher.Constraint("Horizontal", 3, 1, 50, 2),
    Sketcher.Constraint("Horizontal", 2, 2, 51, 1),
    Sketcher.Constraint("Horizontal", 1, 2, 52, 2),
    Sketcher.Constraint("Horizontal", 9, 2, 53, 2),
    Sketcher.Constraint("Horizontal", 10, 2, 54, 2),
    Sketcher.Constraint("Horizontal", 16, 2, 57, 2),
    Sketcher.Constraint("Horizontal", 15, 1, 58, 2),
    Sketcher.Constraint("Horizontal", 14, 2, 59, 1),
    Sketcher.Constraint("Horizontal", 40, 2, 65, 2),
    Sketcher.Constraint("Horizontal", 38, 2, 67, 1),
    Sketcher.Constraint("Horizontal", 25, 2, 69, 2),
    Sketcher.Constraint("Horizontal", 33, 2, 73, 2),
    Sketcher.Constraint("Horizontal", 32, 2, 77, 2),
    Sketcher.Constraint("Horizontal", 30, 2, 79, 1),
    Sketcher.Constraint("Vertical", 14, 2, 15, 1),
    Sketcher.Constraint("Vertical", 79, 3, 21, 2),
    Sketcher.Constraint("Vertical", 9, 2, 25, 2),
    Sketcher.Constraint("Vertical", 4, 2, 29, 2),
    Sketcher.Constraint("Vertical", 2, 2, 31, 1),
    Sketcher.Constraint("Vertical", 5, 2, 33, 2),
    Sketcher.Constraint("Vertical", 20, 2, 37, 2),
    Sketcher.Constraint("Vertical", 18, 2, 39, 1),
    Sketcher.Constraint("Vertical", 22, 2, 61, 2),
    Sketcher.Constraint("Diameter", 0, Q("3 in")),
    Sketcher.Constraint("Radius", 1, Q("1.4 in")),
    Sketcher.Constraint("Radius", 3, Q("1.23 in")),
    Sketcher.Constraint("Angle", 2, Q("46 deg")),
    Sketcher.Constraint("Angle", 4, Q("-154 deg")),
    Sketcher.Constraint("Angle", 6, Q("54 deg")),
    Sketcher.Constraint("Angle", 10, Q("18 deg")),
    Sketcher.Constraint("Angle", 14, Q("10 deg")),
    Sketcher.Constraint("Angle", 18, Q("82 deg")),
    Sketcher.Constraint("Angle", 20, Q("-118 deg")),
    Sketcher.Constraint("Angle", 8, Q("-133.95 deg")),
    Sketcher.Constraint("Angle", 12, Q("-169.95 deg")),
    Sketcher.Constraint("Angle", 24, Q("-97.95 deg")),
    Sketcher.Constraint("Angle", 28, Q("154.05 deg")),
    Sketcher.Constraint("Angle", 36, Q("118.05 deg")),
    Sketcher.Constraint("DistanceY", 35, 1, -1, 1, 46.121002),
    Sketcher.Constraint("DistanceY", 0, 3, -1, 1, 73.69324),
    Sketcher.Constraint("DistanceX", 2, 2, -1, 1, 47.539191),
    Sketcher.Constraint("DistanceY", 3, 1, -1, 1, 87.388832),
    Sketcher.Constraint("DistanceX", 4, 2, -1, 1, 57.79779),
    Sketcher.Constraint("DistanceX", 6, 2, -1, 1, 44.200261),
    Sketcher.Constraint("DistanceX", 7, 1, -1, 1, 47.519571),
    Sketcher.Constraint("DistanceX", 10, 2, -1, 1, 55.549582),
    Sketcher.Constraint("DistanceX", 11, 1, -1, 1, 56.599292),
    Sketcher.Constraint("DistanceY", 13, 2, -1, 1, 79.86817),
    Sketcher.Constraint("DistanceX", 17, 2, -1, 1, 30.785669),
    Sketcher.Constraint("DistanceY", 19, 1, -1, 1, 101.278289),
    Sketcher.Constraint("DistanceX", 23, 1, -1, 1, 30.15772),
    Sketcher.Constraint("DistanceX", 27, 1, -1, 1, 53.928738),
    Sketcher.Constraint("DistanceY", 47, 1, -1, 1, 101.265479),
    Sketcher.Constraint("DistanceX", -1, 1, 55, 1, 2.255391),
    Sketcher.Constraint("DistanceX", 63, 1, -1, 1, 21.515628),
    Sketcher.Constraint("DistanceY", 76, 2, -1, 1, 48.09197),
    Sketcher.Constraint("DistanceX", -1, 1, 71, 1, 4.925944),
])
pad1 = body.newObject("PartDesign::Pad", "Pad")
pad1.Profile = sketch1
pad1.Length = Q("0.1 in")
pad1.Reversed = True

doc.recompute()
